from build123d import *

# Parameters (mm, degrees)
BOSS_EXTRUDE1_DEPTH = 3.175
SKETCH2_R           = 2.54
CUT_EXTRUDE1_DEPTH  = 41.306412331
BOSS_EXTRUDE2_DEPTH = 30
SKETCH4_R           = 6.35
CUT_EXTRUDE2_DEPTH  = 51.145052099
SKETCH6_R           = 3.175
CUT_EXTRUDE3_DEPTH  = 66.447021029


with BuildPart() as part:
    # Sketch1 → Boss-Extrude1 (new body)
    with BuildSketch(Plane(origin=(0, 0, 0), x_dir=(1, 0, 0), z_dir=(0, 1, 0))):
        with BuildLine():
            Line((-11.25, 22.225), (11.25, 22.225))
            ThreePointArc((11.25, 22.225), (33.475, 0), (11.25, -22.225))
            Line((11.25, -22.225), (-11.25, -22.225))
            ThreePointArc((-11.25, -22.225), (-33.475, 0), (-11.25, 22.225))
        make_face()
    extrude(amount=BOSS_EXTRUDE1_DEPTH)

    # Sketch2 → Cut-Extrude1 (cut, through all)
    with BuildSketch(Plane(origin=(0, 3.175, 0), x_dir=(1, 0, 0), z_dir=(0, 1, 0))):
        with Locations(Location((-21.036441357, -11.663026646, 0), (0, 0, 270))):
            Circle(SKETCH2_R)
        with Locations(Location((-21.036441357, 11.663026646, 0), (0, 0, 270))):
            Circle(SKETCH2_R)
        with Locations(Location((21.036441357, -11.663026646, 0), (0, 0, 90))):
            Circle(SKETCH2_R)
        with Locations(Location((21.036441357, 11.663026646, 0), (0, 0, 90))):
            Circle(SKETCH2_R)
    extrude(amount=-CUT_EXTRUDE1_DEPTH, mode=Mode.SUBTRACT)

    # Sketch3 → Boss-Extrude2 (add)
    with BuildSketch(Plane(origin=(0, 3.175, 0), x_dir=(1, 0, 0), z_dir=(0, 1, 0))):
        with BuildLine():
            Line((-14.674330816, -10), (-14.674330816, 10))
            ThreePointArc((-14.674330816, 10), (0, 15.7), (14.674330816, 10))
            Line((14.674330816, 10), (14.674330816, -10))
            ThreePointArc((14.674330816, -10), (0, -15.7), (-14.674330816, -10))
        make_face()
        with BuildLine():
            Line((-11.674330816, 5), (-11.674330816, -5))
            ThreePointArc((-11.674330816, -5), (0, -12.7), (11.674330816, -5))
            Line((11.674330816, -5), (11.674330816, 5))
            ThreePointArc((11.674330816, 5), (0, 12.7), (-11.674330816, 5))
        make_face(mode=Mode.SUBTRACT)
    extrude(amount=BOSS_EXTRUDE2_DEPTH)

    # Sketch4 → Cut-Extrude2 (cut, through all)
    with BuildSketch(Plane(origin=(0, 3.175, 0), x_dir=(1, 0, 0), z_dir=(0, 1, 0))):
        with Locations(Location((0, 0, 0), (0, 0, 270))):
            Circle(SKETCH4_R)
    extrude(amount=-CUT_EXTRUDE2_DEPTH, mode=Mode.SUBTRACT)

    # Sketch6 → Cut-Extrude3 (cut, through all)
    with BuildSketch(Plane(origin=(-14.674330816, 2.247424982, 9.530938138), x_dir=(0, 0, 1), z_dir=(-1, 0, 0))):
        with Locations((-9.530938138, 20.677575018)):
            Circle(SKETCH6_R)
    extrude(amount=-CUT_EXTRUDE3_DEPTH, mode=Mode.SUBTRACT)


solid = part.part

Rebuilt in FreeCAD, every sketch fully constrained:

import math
import FreeCAD as App
import Part
import Sketcher
Q = App.Units.Quantity

doc = App.newDocument("Part")
body = doc.addObject("PartDesign::Body", "Body")

sketch1 = body.newObject("Sketcher::SketchObject", "Sketch")
sketch1.AttachmentSupport = (doc.getObject("XZ_Plane"), [""])
sketch1.MapMode = "FlatFace"
sketch1.addGeometry([
    Part.LineSegment(App.Vector(11.25, -22.225, 0), App.Vector(-11.25, -22.225, 0)),
    Part.ArcOfCircle(Part.Circle(App.Vector(-11.25, 0, 0), App.Vector(0, 0, 1), 22.225), math.radians(90), math.radians(270)),
    Part.LineSegment(App.Vector(-11.25, 22.225, 0), App.Vector(11.25, 22.225, 0)),
    Part.ArcOfCircle(Part.Circle(App.Vector(11.25, 0, 0), App.Vector(0, 0, 1), 22.225), math.radians(-90), math.radians(90)),
], False)
sketch1.addConstraint([
    Sketcher.Constraint("Tangent", 0, 2, 1, 2),
    Sketcher.Constraint("Tangent", 1, 1, 2, 1),
    Sketcher.Constraint("Tangent", 2, 2, 3, 2),
    Sketcher.Constraint("Tangent", 3, 1, 0, 1),
    Sketcher.Constraint("Horizontal", 0),
    Sketcher.Constraint("Horizontal", 2),
    Sketcher.Constraint("Symmetric", 1, 3, 3, 3, -1, 1),
    Sketcher.Constraint("Radius", 1, Q("0.875 in")),
    Sketcher.Constraint("DistanceX", 0, 2, 0, 1, 22.5),
])
pad1 = body.newObject("PartDesign::Pad", "Pad")
pad1.Profile = sketch1
pad1.Length = Q("0.125 in")
pad1.Reversed = True

sketch2 = body.newObject("Sketcher::SketchObject", "Sketch001")
sketch2.AttachmentSupport = (doc.getObject("XZ_Plane"), [""])
sketch2.MapMode = "FlatFace"
sketch2.AttachmentOffset = App.Placement(App.Vector(0, 0, -0.125 * 25.4), App.Rotation())
sketch2.addGeometry([
    Part.Circle(App.Vector(-21.036441, 11.663027, 0), App.Vector(0, 0, 1), 2.54),
    Part.Circle(App.Vector(-21.036441, -11.663027, 0), App.Vector(0, 0, 1), 2.54),
    Part.Circle(App.Vector(21.036441, 11.663027, 0), App.Vector(0, 0, 1), 2.54),
    Part.Circle(App.Vector(21.036441, -11.663027, 0), App.Vector(0, 0, 1), 2.54),
], False)
sketch2.addConstraint([
    Sketcher.Constraint("Equal", 0, 1),
    Sketcher.Constraint("Equal", 1, 2),
    Sketcher.Constraint("Equal", 2, 3),
    Sketcher.Constraint("Symmetric", 1, 3, 2, 3, -1, 1),
    Sketcher.Constraint("Symmetric", 0, 3, 3, 3, -1, 1),
    Sketcher.Constraint("Symmetric", 0, 3, 2, 3, -2),
    Sketcher.Constraint("Diameter", 0, Q("0.2 in")),
    Sketcher.Constraint("DistanceX", 0, 3, -1, 1, 21.036441),
    Sketcher.Constraint("DistanceY", -1, 1, 0, 3, 11.663027),
])
pocket1 = body.newObject("PartDesign::Pocket", "Pocket")
pocket1.Profile = sketch2
pocket1.Type = "ThroughAll"
pocket1.Reversed = True

sketch3 = body.newObject("Sketcher::SketchObject", "Sketch002")
sketch3.AttachmentSupport = (doc.getObject("XZ_Plane"), [""])
sketch3.MapMode = "FlatFace"
sketch3.AttachmentOffset = App.Placement(App.Vector(0, 0, -0.125 * 25.4), App.Rotation())
sketch3.addGeometry([
    Part.LineSegment(App.Vector(-14.674331, -10, 0), App.Vector(-14.674331, 10, 0)),
    Part.ArcOfCircle(Part.Circle(App.Vector(0, -6.039121, 0), App.Vector(0, 0, 1), 21.739121), math.radians(47.544336), math.radians(132.455664)),
    Part.LineSegment(App.Vector(14.674331, 10, 0), App.Vector(14.674331, -10, 0)),
    Part.ArcOfCircle(Part.Circle(App.Vector(0, 6.039121, 0), App.Vector(0, 0, 1), 21.739121), math.radians(-132.455664), math.radians(-47.544336)),
    Part.ArcOfCircle(Part.Circle(App.Vector(0, 0, 0), App.Vector(0, 0, 1), 12.7), math.radians(-156.81503), math.radians(-23.18497)),
    Part.LineSegment(App.Vector(11.674331, -5, 0), App.Vector(11.674331, 5, 0)),
    Part.ArcOfCircle(Part.Circle(App.Vector(0, 0, 0), App.Vector(0, 0, 1), 12.7), math.radians(23.18497), math.radians(156.81503)),
    Part.LineSegment(App.Vector(-11.674331, 5, 0), App.Vector(-11.674331, -5, 0)),
], False)
sketch3.addConstraint([
    Sketcher.Constraint("Coincident", 0, 2, 1, 2),
    Sketcher.Constraint("Coincident", 1, 1, 2, 1),
    Sketcher.Constraint("Coincident", 2, 2, 3, 2),
    Sketcher.Constraint("Coincident", 3, 1, 0, 1),
    Sketcher.Constraint("Coincident", 4, 2, 5, 1),
    Sketcher.Constraint("Coincident", 5, 2, 6, 1),
    Sketcher.Constraint("Coincident", 6, 2, 7, 1),
    Sketcher.Constraint("Coincident", 7, 2, 4, 1),
    Sketcher.Constraint("Vertical", 0),
    Sketcher.Constraint("Vertical", 2),
    Sketcher.Constraint("Vertical", 5),
    Sketcher.Constraint("Vertical", 7),
    Sketcher.Constraint("Coincident", 4, 3, -1, 1),
    Sketcher.Constraint("Coincident", 6, 3, -1, 1),
    Sketcher.Constraint("Equal", 1, 3),
    Sketcher.Constraint("Equal", 4, 6),
    Sketcher.Constraint("Symmetric", 1, 3, 3, 3, -1, 1),
    Sketcher.Constraint("Symmetric", 0, 2, 1, 1, -2),
    Sketcher.Constraint("Horizontal", 5, 2, 6, 2),
    Sketcher.Constraint("Radius", 4, Q("0.5 in")),
    Sketcher.Constraint("Radius", 1, 21.739121),
    Sketcher.Constraint("DistanceY", 0, 1, 0, 2, 20.0),
    Sketcher.Constraint("DistanceY", 5, 1, 5, 2, 10.0),
    Sketcher.Constraint("DistanceX", 4, 2, 2, 2, 3.0),
])
pad2 = body.newObject("PartDesign::Pad", "Pad001")
pad2.Profile = sketch3
pad2.Length = 30
pad2.Reversed = True

sketch4 = body.newObject("Sketcher::SketchObject", "Sketch003")
sketch4.AttachmentSupport = (doc.getObject("XZ_Plane"), [""])
sketch4.MapMode = "FlatFace"
sketch4.AttachmentOffset = App.Placement(App.Vector(0, 0, -0.125 * 25.4), App.Rotation())
sketch4.addGeometry(Part.Circle(App.Vector(0, 0, 0), App.Vector(0, 0, 1), 6.35), False)
sketch4.addConstraint([
    Sketcher.Constraint("Coincident", 0, 3, -1, 1),
    Sketcher.Constraint("Diameter", 0, Q("0.5 in")),
])
pocket2 = body.newObject("PartDesign::Pocket", "Pocket001")
pocket2.Profile = sketch4
pocket2.Type = "ThroughAll"
pocket2.Reversed = True

sketch5 = body.newObject("Sketcher::SketchObject", "Sketch004")
sketch5.AttachmentSupport = (doc.getObject("YZ_Plane"), [""])
sketch5.MapMode = "FlatFace"
sketch5.AttachmentOffset = App.Placement(App.Vector(0, 0, -14.674331), App.Rotation())
sketch5.addGeometry(Part.Circle(App.Vector(22.925, 0, 0), App.Vector(0, 0, 1), 3.175), False)
sketch5.addConstraint([
    Sketcher.Constraint("PointOnObject", 0, 3, -1),
    Sketcher.Constraint("Diameter", 0, Q("0.25 in")),
    Sketcher.Constraint("DistanceX", -1, 1, 0, 3, 22.925),
])
pocket3 = body.newObject("PartDesign::Pocket", "Pocket002")
pocket3.Profile = sketch5
pocket3.Type = "ThroughAll"
pocket3.Reversed = True

doc.recompute()
